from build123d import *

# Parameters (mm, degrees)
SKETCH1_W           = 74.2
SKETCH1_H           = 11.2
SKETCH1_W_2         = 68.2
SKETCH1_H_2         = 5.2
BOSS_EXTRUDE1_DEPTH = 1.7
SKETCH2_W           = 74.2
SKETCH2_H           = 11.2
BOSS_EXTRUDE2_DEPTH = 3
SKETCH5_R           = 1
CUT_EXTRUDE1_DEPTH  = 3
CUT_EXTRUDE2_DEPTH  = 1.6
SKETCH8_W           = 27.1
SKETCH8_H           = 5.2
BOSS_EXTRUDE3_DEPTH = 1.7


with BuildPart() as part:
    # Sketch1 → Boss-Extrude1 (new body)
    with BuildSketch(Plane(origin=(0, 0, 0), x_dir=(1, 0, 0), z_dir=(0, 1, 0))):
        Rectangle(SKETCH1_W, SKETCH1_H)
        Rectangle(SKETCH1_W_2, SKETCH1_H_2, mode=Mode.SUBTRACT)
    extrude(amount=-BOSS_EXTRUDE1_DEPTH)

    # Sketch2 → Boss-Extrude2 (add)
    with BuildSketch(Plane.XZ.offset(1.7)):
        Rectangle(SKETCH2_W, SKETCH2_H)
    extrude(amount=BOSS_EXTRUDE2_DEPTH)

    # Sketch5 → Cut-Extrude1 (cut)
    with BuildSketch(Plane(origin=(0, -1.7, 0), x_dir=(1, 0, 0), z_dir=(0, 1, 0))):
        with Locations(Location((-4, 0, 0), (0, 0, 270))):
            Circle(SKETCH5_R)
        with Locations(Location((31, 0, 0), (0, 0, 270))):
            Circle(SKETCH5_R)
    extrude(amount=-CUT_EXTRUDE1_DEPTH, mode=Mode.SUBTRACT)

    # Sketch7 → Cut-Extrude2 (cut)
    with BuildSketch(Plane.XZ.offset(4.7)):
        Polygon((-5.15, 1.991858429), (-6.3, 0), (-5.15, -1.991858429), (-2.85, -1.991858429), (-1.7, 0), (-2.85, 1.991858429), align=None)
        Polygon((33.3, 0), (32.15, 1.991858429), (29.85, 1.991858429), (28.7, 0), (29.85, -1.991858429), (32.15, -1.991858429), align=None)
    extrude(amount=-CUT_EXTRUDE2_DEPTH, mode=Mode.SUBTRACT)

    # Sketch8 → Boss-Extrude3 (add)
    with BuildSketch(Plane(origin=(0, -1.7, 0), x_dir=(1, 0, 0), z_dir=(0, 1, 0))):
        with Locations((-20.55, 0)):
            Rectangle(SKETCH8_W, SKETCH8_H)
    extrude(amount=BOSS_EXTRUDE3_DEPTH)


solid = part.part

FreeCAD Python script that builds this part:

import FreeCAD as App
import Part
import Sketcher

V = App.Vector
Q = App.Units.Quantity

doc = App.newDocument("Part")
params = doc.addObject("Spreadsheet::Sheet", "Params")
for row, (alias, value) in enumerate([
    ("sketch1_width", "74.2 mm"),
    ("sketch1_width2", "68.2 mm"),
    ("sketch1_height", "11.2 mm"),
    ("sketch1_height2", "5.2 mm"),
    ("pad1_length", "1.7 mm"),
    ("sketch2_width", "74.2 mm"),
    ("sketch2_height", "11.2 mm"),
    ("pad2_length", "3 mm"),
    ("sketch3_diameter", "2 mm"),
    ("pocket1_length", "3 mm"),
    ("sketch4_width", "2.3 mm"),
    ("sketch4_length", "2.3 mm"),
    ("pocket2_length", "1.6 mm"),
    ("sketch5_width", "27.1 mm"),
    ("sketch5_height", "5.2 mm"),
    ("pad3_length", "1.7 mm"),
], start=1):
    params.set(f"A{row}", alias)
    params.set(f"B{row}", "=" + value)
    params.setAlias(f"B{row}", alias)

body = doc.addObject("PartDesign::Body", "Body")

sketch1 = body.newObject("Sketcher::SketchObject", "Sketch")
sketch1.AttachmentSupport = (doc.getObject("XZ_Plane"), [""])
sketch1.MapMode = "FlatFace"
sketch1.addGeometry(Part.LineSegment(V(-37, -6, 0), V(-37, 6, 0)), False)
sketch1.addGeometry(Part.LineSegment(V(-37, 6, 0), V(37, 6, 0)), False)
sketch1.addGeometry(Part.LineSegment(V(37, 6, 0), V(37, -6, 0)), False)
sketch1.addGeometry(Part.LineSegment(V(37, -6, 0), V(-37, -6, 0)), False)
sketch1.addGeometry(Part.LineSegment(V(34, 3, 0), V(-34, 3, 0)), False)
sketch1.addGeometry(Part.LineSegment(V(-34, 3, 0), V(-34, -3, 0)), False)
sketch1.addGeometry(Part.LineSegment(V(-34, -3, 0), V(34, -3, 0)), False)
sketch1.addGeometry(Part.LineSegment(V(34, -3, 0), V(34, 3, 0)), False)
sketch1.addConstraint(Sketcher.Constraint("Coincident", 0, 2, 1, 1))
sketch1.addConstraint(Sketcher.Constraint("Coincident", 1, 2, 2, 1))
sketch1.addConstraint(Sketcher.Constraint("Coincident", 2, 2, 3, 1))
sketch1.addConstraint(Sketcher.Constraint("Coincident", 3, 2, 0, 1))
sketch1.addConstraint(Sketcher.Constraint("Coincident", 4, 2, 5, 1))
sketch1.addConstraint(Sketcher.Constraint("Coincident", 5, 2, 6, 1))
sketch1.addConstraint(Sketcher.Constraint("Coincident", 6, 2, 7, 1))
sketch1.addConstraint(Sketcher.Constraint("Coincident", 7, 2, 4, 1))
sketch1.addConstraint(Sketcher.Constraint("Vertical", 0))
sketch1.addConstraint(Sketcher.Constraint("Horizontal", 1))
sketch1.addConstraint(Sketcher.Constraint("Vertical", 2))
sketch1.addConstraint(Sketcher.Constraint("Horizontal", 3))
sketch1.addConstraint(Sketcher.Constraint("Horizontal", 4))
sketch1.addConstraint(Sketcher.Constraint("Vertical", 5))
sketch1.addConstraint(Sketcher.Constraint("Horizontal", 6))
sketch1.addConstraint(Sketcher.Constraint("Vertical", 7))
sketch1.addConstraint(Sketcher.Constraint("Symmetric", 0, 2, 2, 2, -1, 1))
sketch1.addConstraint(Sketcher.Constraint("Symmetric", 4, 2, 6, 2, -1, 1))
sketch1.addConstraint(Sketcher.Constraint("DistanceX", 1, 1, 1, 2, Q("74.2 mm")))
sketch1.addConstraint(Sketcher.Constraint("DistanceX", 4, 2, 4, 1, Q("68.2 mm")))
sketch1.addConstraint(Sketcher.Constraint("DistanceY", 0, 1, 0, 2, Q("11.2 mm")))
sketch1.addConstraint(Sketcher.Constraint("DistanceY", 5, 2, 5, 1, Q("5.2 mm")))
sketch1.setExpression("Constraints[18]", "Params.sketch1_width")
sketch1.setExpression("Constraints[19]", "Params.sketch1_width2")
sketch1.setExpression("Constraints[20]", "Params.sketch1_height")
sketch1.setExpression("Constraints[21]", "Params.sketch1_height2")
pad1 = body.newObject("PartDesign::Pad", "Pad")
pad1.Profile = sketch1
pad1.setExpression("Length", "Params.pad1_length")

sketch2 = body.newObject("Sketcher::SketchObject", "Sketch001")
sketch2.AttachmentSupport = (doc.getObject("XZ_Plane"), [""])
sketch2.MapMode = "FlatFace"
sketch2.AttachmentOffset = App.Placement(V(0, 0, 1.7), App.Rotation())
sketch2.addGeometry(Part.LineSegment(V(-37, 6, 0), V(-37, -6, 0)), False)
sketch2.addGeometry(Part.LineSegment(V(-37, -6, 0), V(37, -6, 0)), False)
sketch2.addGeometry(Part.LineSegment(V(37, -6, 0), V(37, 6, 0)), False)
sketch2.addGeometry(Part.LineSegment(V(37, 6, 0), V(-37, 6, 0)), False)
sketch2.addConstraint(Sketcher.Constraint("Coincident", 0, 2, 1, 1))
sketch2.addConstraint(Sketcher.Constraint("Coincident", 1, 2, 2, 1))
sketch2.addConstraint(Sketcher.Constraint("Coincident", 2, 2, 3, 1))
sketch2.addConstraint(Sketcher.Constraint("Coincident", 3, 2, 0, 1))
sketch2.addConstraint(Sketcher.Constraint("Vertical", 0))
sketch2.addConstraint(Sketcher.Constraint("Horizontal", 1))
sketch2.addConstraint(Sketcher.Constraint("Vertical", 2))
sketch2.addConstraint(Sketcher.Constraint("Horizontal", 3))
sketch2.addConstraint(Sketcher.Constraint("Symmetric", 0, 2, 2, 2, -1, 1))
sketch2.addConstraint(Sketcher.Constraint("DistanceX", 1, 1, 1, 2, Q("74.2 mm")))
sketch2.addConstraint(Sketcher.Constraint("DistanceY", 0, 2, 0, 1, Q("11.2 mm")))
sketch2.setExpression("Constraints[9]", "Params.sketch2_width")
sketch2.setExpression("Constraints[10]", "Params.sketch2_height")
pad2 = body.newObject("PartDesign::Pad", "Pad001")
pad2.Profile = sketch2
pad2.setExpression("Length", "Params.pad2_length")

sketch3 = body.newObject("Sketcher::SketchObject", "Sketch002")
sketch3.AttachmentSupport = (doc.getObject("XZ_Plane"), [""])
sketch3.MapMode = "FlatFace"
sketch3.AttachmentOffset = App.Placement(V(0, 0, 1.7), App.Rotation())
sketch3.addGeometry(Part.Circle(V(-4, 0, 0), V(0, 0, 1), 1), False)
sketch3.addGeometry(Part.Circle(V(31, 0, 0), V(0, 0, 1), 1), False)
sketch3.addConstraint(Sketcher.Constraint("Equal", 0, 1))
sketch3.addConstraint(Sketcher.Constraint("PointOnObject", 0, 3, -1))
sketch3.addConstraint(Sketcher.Constraint("PointOnObject", 1, 3, -1))
sketch3.addConstraint(Sketcher.Constraint("Diameter", 0, Q("2 mm")))
sketch3.addConstraint(Sketcher.Constraint("DistanceX", 0, 3, -1, 1, Q("4 mm")))
sketch3.addConstraint(Sketcher.Constraint("DistanceX", -1, 1, 1, 3, Q("31 mm")))
sketch3.setExpression("Constraints[3]", "Params.sketch3_diameter")
pocket1 = body.newObject("PartDesign::Pocket", "Pocket")
pocket1.Profile = sketch3
pocket1.setExpression("Length", "Params.pocket1_length")
pocket1.Reversed = True

sketch4 = body.newObject("Sketcher::SketchObject", "Sketch003")
sketch4.AttachmentSupport = (doc.getObject("XZ_Plane"), [""])
sketch4.MapMode = "FlatFace"
sketch4.AttachmentOffset = App.Placement(V(0, 0, 4.7), App.Rotation())
sketch4.addGeometry(Part.LineSegment(V(-5.2, 2, 0), V(-6.3, 0, 0)), False)
sketch4.addGeometry(Part.LineSegment(V(-6.3, 0, 0), V(-5.2, -2, 0)), False)
sketch4.addGeometry(Part.LineSegment(V(-5.2, -2, 0), V(-2.9, -2, 0)), False)
sketch4.addGeometry(Part.LineSegment(V(-2.9, -2, 0), V(-1.7, 0, 0)), False)
sketch4.addGeometry(Part.LineSegment(V(-1.7, 0, 0), V(-2.9, 2, 0)), False)
sketch4.addGeometry(Part.LineSegment(V(-2.9, 2, 0), V(-5.2, 2, 0)), False)
sketch4.addGeometry(Part.LineSegment(V(33.3, 0, 0), V(32.1, 2, 0)), False)
sketch4.addGeometry(Part.LineSegment(V(32.1, 2, 0), V(29.9, 2, 0)), False)
sketch4.addGeometry(Part.LineSegment(V(29.9, 2, 0), V(28.7, 0, 0)), False)
sketch4.addGeometry(Part.LineSegment(V(28.7, 0, 0), V(29.9, -2, 0)), False)
sketch4.addGeometry(Part.LineSegment(V(29.9, -2, 0), V(32.1, -2, 0)), False)
sketch4.addGeometry(Part.LineSegment(V(32.1, -2, 0), V(33.3, 0, 0)), False)
sketch4.addConstraint(Sketcher.Constraint("Coincident", 0, 2, 1, 1))
sketch4.addConstraint(Sketcher.Constraint("Coincident", 1, 2, 2, 1))
sketch4.addConstraint(Sketcher.Constraint("Coincident", 2, 2, 3, 1))
sketch4.addConstraint(Sketcher.Constraint("Coincident", 3, 2, 4, 1))
sketch4.addConstraint(Sketcher.Constraint("Coincident", 4, 2, 5, 1))
sketch4.addConstraint(Sketcher.Constraint("Coincident", 5, 2, 0, 1))
sketch4.addConstraint(Sketcher.Constraint("Coincident", 6, 2, 7, 1))
sketch4.addConstraint(Sketcher.Constraint("Coincident", 7, 2, 8, 1))
sketch4.addConstraint(Sketcher.Constraint("Coincident", 8, 2, 9, 1))
sketch4.addConstraint(Sketcher.Constraint("Coincident", 9, 2, 10, 1))
sketch4.addConstraint(Sketcher.Constraint("Coincident", 10, 2, 11, 1))
sketch4.addConstraint(Sketcher.Constraint("Coincident", 11, 2, 6, 1))
sketch4.addConstraint(Sketcher.Constraint("Horizontal", 2))
sketch4.addConstraint(Sketcher.Constraint("Horizontal", 5))
sketch4.addConstraint(Sketcher.Constraint("Horizontal", 7))
sketch4.addConstraint(Sketcher.Constraint("Horizontal", 10))
sketch4.addConstraint(Sketcher.Constraint("Symmetric", 2, 2, 4, 2, -1))
sketch4.addConstraint(Sketcher.Constraint("Symmetric", 7, 2, 9, 2, -1))
sketch4.addConstraint(Sketcher.Constraint("PointOnObject", 0, 2, -1))
sketch4.addConstraint(Sketcher.Constraint("PointOnObject", 3, 2, -1))
sketch4.addConstraint(Sketcher.Constraint("PointOnObject", 8, 2, -1))
sketch4.addConstraint(Sketcher.Constraint("PointOnObject", 11, 2, -1))
sketch4.addConstraint(Sketcher.Constraint("Parallel", 0, 3))
sketch4.addConstraint(Sketcher.Constraint("Parallel", 1, 4))
sketch4.addConstraint(Sketcher.Constraint("Parallel", 4, 6))
sketch4.addConstraint(Sketcher.Constraint("Parallel", 3, 8))
sketch4.addConstraint(Sketcher.Constraint("Parallel", 8, 11))
sketch4.addConstraint(Sketcher.Constraint("Horizontal", 5, 2, 6, 2))
sketch4.addConstraint(Sketcher.Constraint("Equal", 5, 7))
sketch4.addConstraint(Sketcher.Constraint("Angle", 0, Q("-120 deg")))
sketch4.addConstraint(Sketcher.Constraint("DistanceX", 2, 1, 2, 2, Q("2.3 mm")))
sketch4.addConstraint(Sketcher.Constraint("DistanceX", 4, 2, 6, 2, Q("35 mm")))
sketch4.addConstraint(Sketcher.Constraint("Distance", 0, Q("2.3 mm")))
sketch4.addConstraint(Sketcher.Constraint("DistanceX", 0, 2, -1, 1, Q("6.3 mm")))
sketch4.setExpression("Constraints[30]", "Params.sketch4_width")
sketch4.setExpression("Constraints[32]", "Params.sketch4_length")
pocket2 = body.newObject("PartDesign::Pocket", "Pocket001")
pocket2.Profile = sketch4
pocket2.setExpression("Length", "Params.pocket2_length")

sketch5 = body.newObject("Sketcher::SketchObject", "Sketch004")
sketch5.AttachmentSupport = (doc.getObject("XZ_Plane"), [""])
sketch5.MapMode = "FlatFace"
sketch5.AttachmentOffset = App.Placement(V(0, 0, 1.7), App.Rotation())
sketch5.addGeometry(Part.LineSegment(V(-34, -3, 0), V(-34, 3, 0)), False)
sketch5.addGeometry(Part.LineSegment(V(-34, 3, 0), V(-7, 3, 0)), False)
sketch5.addGeometry(Part.LineSegment(V(-7, 3, 0), V(-7, -3, 0)), False)
sketch5.addGeometry(Part.LineSegment(V(-7, -3, 0), V(-34, -3, 0)), False)
sketch5.addConstraint(Sketcher.Constraint("Coincident", 0, 2, 1, 1))
sketch5.addConstraint(Sketcher.Constraint("Coincident", 1, 2, 2, 1))
sketch5.addConstraint(Sketcher.Constraint("Coincident", 2, 2, 3, 1))
sketch5.addConstraint(Sketcher.Constraint("Coincident", 3, 2, 0, 1))
sketch5.addConstraint(Sketcher.Constraint("Vertical", 0))
sketch5.addConstraint(Sketcher.Constraint("Horizontal", 1))
sketch5.addConstraint(Sketcher.Constraint("Vertical", 2))
sketch5.addConstraint(Sketcher.Constraint("Horizontal", 3))
sketch5.addConstraint(Sketcher.Constraint("DistanceX", 1, 1, 1, 2, Q("27.1 mm")))
sketch5.addConstraint(Sketcher.Constraint("DistanceY", 0, 1, 0, 2, Q("5.2 mm")))
sketch5.addConstraint(Sketcher.Constraint("DistanceX", 1, 2, -1, 1, Q("7 mm")))
sketch5.addConstraint(Sketcher.Constraint("DistanceY", -1, 1, 0, 2, Q("2.6 mm")))
sketch5.setExpression("Constraints[8]", "Params.sketch5_width")
sketch5.setExpression("Constraints[9]", "Params.sketch5_height")
pad3 = body.newObject("PartDesign::Pad", "Pad002")
pad3.Profile = sketch5
pad3.setExpression("Length", "Params.pad3_length")
pad3.Reversed = True

doc.recompute()
